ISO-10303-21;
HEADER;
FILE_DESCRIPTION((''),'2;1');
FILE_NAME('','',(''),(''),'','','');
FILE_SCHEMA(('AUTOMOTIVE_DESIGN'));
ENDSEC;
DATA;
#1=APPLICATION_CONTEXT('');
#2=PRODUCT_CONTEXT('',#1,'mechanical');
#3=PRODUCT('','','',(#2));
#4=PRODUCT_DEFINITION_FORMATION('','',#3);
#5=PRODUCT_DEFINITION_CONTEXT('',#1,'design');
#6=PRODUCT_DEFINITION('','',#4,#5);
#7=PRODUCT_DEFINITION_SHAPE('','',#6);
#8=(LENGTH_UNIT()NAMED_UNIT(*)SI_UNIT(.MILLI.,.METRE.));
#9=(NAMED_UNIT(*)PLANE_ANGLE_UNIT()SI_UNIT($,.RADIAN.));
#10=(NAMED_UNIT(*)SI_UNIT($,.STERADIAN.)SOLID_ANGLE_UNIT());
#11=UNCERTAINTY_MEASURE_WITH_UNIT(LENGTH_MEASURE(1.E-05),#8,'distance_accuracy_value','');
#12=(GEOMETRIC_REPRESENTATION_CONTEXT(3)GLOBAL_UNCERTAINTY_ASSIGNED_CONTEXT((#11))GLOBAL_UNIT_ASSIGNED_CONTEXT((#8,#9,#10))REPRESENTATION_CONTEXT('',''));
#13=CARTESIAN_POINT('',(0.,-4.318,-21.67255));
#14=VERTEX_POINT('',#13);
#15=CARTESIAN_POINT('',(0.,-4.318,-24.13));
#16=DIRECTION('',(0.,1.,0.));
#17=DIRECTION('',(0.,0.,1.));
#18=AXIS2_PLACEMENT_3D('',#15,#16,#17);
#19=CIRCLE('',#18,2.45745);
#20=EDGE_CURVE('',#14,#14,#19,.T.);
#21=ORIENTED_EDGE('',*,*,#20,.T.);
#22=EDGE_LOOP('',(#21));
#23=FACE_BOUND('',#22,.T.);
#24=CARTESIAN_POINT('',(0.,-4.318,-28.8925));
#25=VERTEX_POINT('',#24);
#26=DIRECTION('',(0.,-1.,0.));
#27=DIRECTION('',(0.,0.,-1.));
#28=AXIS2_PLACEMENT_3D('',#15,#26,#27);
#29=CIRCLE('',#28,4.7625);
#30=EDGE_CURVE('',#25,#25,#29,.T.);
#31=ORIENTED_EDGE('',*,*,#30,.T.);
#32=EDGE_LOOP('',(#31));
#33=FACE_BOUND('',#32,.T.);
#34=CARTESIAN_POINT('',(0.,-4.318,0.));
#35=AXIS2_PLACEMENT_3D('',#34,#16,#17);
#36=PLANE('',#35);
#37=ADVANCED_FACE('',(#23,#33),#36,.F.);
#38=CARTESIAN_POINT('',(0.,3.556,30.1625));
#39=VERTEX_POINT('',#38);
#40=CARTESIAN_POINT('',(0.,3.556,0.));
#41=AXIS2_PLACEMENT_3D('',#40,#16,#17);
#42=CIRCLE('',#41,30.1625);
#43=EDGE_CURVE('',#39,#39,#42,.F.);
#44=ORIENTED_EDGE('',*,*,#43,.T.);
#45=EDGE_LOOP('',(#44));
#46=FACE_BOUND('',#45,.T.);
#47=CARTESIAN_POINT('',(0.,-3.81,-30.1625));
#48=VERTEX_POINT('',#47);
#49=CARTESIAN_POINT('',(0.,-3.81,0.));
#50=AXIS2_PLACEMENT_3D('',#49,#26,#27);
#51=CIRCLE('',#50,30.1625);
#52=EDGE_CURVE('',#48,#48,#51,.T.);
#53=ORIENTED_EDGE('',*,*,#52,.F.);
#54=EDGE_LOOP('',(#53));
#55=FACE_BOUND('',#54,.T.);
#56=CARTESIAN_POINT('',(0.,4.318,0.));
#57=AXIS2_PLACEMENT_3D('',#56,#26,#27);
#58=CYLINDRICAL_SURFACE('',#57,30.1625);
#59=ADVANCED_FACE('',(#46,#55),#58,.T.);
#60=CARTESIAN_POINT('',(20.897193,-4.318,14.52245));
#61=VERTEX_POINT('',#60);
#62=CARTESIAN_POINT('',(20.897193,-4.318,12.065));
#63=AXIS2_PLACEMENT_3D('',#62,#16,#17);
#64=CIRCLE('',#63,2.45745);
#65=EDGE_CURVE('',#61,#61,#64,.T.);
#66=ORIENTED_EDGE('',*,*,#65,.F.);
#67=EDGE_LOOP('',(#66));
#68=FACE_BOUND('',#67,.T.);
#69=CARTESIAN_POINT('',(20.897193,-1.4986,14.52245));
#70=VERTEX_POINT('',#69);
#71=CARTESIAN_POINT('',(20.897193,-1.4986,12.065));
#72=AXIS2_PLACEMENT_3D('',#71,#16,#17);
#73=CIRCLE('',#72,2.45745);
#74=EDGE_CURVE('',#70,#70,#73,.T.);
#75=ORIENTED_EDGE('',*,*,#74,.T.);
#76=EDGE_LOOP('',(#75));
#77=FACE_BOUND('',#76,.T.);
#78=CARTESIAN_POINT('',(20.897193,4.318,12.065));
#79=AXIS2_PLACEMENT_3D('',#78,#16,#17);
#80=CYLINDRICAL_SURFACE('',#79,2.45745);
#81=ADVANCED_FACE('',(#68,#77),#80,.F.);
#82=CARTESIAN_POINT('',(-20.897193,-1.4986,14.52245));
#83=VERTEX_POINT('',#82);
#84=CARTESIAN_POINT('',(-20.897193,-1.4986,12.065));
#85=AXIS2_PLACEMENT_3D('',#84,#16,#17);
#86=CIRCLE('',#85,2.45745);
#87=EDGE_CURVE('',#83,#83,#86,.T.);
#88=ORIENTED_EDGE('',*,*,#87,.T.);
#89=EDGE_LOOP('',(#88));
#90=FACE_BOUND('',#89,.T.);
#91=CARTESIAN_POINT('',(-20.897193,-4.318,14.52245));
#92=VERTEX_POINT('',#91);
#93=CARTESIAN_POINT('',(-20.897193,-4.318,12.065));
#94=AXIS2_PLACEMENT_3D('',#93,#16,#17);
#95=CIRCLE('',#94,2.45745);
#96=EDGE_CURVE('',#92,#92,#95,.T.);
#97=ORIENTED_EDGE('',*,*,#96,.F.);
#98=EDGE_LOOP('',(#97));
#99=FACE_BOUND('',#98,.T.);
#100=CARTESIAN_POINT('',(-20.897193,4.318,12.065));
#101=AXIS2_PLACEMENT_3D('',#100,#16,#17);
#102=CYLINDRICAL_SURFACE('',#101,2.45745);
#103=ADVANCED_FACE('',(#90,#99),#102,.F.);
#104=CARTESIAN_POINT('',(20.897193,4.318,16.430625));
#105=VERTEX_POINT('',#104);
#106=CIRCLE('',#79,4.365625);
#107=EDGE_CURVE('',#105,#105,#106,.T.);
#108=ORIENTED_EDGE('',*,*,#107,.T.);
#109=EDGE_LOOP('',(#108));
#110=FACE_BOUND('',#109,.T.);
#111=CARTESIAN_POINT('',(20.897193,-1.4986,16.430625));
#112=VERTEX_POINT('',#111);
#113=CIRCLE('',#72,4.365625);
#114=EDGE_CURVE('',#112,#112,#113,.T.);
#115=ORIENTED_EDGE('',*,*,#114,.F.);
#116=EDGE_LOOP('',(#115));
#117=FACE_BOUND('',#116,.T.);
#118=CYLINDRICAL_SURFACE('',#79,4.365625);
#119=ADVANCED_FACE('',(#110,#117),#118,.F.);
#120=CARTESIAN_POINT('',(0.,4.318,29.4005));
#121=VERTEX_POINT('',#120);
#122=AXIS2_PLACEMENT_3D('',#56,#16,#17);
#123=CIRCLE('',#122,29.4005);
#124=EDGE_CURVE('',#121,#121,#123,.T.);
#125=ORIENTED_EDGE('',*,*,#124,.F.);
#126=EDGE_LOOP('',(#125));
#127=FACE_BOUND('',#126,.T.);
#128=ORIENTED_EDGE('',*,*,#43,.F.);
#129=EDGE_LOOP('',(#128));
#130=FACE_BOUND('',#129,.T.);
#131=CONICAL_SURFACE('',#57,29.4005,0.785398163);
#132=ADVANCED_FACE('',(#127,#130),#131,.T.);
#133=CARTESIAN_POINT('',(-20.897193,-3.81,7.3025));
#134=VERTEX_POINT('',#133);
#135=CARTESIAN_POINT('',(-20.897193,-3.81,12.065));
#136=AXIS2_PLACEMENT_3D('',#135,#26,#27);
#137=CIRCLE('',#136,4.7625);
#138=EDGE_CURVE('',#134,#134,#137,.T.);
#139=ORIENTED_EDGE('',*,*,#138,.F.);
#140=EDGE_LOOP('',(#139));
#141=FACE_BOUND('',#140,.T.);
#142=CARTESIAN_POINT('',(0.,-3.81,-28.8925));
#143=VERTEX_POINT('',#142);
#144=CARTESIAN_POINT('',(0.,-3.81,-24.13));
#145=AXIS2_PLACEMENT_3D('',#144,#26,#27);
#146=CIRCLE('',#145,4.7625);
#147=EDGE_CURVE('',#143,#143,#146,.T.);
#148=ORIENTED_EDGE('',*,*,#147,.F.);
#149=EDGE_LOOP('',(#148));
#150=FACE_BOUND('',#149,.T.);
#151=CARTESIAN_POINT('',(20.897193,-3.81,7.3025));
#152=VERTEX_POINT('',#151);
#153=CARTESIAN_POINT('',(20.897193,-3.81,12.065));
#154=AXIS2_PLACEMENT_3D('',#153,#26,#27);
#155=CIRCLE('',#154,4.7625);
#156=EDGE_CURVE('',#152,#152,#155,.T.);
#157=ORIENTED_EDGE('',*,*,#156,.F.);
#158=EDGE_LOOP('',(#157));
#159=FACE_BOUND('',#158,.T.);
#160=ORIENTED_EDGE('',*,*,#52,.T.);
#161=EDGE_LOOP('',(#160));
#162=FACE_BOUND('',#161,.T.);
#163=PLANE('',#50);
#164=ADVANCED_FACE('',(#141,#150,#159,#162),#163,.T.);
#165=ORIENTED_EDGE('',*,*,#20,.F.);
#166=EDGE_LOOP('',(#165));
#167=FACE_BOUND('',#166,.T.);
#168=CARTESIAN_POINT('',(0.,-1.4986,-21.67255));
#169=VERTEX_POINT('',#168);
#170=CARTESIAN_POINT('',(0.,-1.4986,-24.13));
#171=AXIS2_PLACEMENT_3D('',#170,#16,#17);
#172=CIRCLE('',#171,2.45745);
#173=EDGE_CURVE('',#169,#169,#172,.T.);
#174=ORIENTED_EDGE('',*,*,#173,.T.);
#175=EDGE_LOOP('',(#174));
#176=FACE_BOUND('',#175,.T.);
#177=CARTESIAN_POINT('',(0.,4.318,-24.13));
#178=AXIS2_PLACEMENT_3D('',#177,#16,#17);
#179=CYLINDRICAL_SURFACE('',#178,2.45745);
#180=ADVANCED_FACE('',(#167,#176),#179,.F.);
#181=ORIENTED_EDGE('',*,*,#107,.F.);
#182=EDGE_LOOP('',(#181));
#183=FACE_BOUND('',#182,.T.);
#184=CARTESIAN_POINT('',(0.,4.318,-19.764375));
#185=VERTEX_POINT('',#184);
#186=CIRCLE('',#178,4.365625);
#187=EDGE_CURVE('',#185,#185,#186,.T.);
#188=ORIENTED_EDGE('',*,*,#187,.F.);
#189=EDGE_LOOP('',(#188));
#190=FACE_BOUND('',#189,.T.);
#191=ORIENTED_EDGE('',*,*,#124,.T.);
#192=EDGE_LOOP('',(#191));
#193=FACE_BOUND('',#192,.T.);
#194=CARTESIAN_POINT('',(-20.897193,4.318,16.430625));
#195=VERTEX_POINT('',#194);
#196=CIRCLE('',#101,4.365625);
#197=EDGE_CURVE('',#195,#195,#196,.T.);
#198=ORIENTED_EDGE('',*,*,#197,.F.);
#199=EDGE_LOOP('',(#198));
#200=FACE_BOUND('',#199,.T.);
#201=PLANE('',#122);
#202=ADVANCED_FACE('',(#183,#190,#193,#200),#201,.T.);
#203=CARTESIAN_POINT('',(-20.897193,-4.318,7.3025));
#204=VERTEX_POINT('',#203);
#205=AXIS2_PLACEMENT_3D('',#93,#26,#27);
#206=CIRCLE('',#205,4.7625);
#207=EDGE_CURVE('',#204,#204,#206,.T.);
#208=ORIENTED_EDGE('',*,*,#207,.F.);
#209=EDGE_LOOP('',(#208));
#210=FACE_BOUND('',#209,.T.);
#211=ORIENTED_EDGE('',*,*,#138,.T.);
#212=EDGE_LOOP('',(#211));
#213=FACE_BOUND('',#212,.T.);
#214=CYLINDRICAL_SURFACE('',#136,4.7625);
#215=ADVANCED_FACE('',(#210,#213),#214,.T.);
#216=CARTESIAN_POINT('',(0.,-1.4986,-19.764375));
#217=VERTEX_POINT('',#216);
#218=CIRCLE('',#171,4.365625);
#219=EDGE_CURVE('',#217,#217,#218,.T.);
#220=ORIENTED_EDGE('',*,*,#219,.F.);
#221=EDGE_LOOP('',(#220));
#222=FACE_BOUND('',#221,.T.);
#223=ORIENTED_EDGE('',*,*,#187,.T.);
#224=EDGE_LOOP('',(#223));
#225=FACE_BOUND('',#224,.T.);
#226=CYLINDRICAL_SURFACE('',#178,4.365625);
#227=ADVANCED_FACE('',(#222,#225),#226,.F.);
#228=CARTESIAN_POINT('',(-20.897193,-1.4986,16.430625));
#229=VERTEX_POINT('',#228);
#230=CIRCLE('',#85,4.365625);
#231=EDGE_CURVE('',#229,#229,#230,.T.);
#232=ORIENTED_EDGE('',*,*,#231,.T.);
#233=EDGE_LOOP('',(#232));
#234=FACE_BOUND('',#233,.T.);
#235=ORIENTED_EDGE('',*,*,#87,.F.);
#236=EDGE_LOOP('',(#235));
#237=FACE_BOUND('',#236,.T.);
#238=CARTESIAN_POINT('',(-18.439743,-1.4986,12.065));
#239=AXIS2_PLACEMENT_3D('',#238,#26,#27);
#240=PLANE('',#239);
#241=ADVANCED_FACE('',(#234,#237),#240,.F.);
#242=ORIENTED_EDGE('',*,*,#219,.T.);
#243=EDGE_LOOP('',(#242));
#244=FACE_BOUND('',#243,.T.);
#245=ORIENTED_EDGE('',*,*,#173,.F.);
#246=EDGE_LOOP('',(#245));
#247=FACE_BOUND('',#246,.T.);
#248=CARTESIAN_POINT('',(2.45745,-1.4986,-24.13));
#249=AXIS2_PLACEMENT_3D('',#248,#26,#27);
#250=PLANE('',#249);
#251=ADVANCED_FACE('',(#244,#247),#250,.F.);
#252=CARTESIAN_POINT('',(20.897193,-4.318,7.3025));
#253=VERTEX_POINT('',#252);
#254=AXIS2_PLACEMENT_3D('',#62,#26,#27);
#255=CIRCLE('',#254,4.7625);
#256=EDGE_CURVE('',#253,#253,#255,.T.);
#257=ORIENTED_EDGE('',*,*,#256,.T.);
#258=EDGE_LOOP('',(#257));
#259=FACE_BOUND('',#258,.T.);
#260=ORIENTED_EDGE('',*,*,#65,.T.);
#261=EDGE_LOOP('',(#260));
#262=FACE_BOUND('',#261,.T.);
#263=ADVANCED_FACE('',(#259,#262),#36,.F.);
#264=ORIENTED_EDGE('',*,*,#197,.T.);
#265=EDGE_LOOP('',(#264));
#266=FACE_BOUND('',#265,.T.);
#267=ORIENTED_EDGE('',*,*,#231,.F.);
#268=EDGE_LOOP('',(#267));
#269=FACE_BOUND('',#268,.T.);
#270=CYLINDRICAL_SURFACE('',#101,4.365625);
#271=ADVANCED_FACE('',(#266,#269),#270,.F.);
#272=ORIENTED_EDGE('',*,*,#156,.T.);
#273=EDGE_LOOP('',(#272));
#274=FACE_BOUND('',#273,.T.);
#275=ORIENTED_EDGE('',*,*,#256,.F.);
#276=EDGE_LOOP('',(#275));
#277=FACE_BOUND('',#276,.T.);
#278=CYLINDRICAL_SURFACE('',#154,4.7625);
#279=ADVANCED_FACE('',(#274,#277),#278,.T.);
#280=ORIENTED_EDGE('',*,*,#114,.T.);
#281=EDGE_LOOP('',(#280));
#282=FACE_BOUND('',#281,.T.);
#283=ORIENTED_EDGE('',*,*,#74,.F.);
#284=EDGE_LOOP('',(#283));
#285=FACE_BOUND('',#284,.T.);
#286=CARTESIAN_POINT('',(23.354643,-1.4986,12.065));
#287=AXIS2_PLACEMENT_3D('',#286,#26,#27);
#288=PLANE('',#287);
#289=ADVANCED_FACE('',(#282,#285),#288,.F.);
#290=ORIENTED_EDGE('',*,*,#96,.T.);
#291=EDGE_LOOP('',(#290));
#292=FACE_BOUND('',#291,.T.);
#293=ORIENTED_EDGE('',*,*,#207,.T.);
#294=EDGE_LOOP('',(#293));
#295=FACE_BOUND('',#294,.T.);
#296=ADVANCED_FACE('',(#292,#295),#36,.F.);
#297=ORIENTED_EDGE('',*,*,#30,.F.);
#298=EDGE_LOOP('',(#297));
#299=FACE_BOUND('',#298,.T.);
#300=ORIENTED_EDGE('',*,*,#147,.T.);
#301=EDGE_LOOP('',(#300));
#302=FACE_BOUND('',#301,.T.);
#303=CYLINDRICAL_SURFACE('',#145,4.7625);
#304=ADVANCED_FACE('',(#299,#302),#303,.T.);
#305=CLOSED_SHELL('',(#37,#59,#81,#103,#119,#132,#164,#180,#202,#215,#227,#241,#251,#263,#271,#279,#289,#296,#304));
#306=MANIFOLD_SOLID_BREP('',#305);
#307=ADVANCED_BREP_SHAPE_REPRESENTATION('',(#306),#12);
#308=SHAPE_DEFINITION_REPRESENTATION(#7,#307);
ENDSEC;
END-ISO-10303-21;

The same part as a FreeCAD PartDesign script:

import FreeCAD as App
import Part
import Sketcher
Q = App.Units.Quantity


def edges_at(feature, points):
    """Names of the edges that pass closest to the given points."""
    edges = feature.Shape.Edges
    near = lambda p: min(range(len(edges)), key=lambda i: edges[i].distToShape(Part.Vertex(*p))[0])
    return sorted({f"Edge{near(p) + 1}" for p in points})

doc = App.newDocument("Part")
body = doc.addObject("PartDesign::Body", "Body")

sketch1 = body.newObject("Sketcher::SketchObject", "Sketch")
sketch1.AttachmentSupport = (doc.getObject("XZ_Plane"), [""])
sketch1.MapMode = "FlatFace"
sketch1.addGeometry(Part.Circle(App.Vector(0, 0, 0), App.Vector(0, 0, 1), 30), False)
sketch1.addConstraint(Sketcher.Constraint("Coincident", 0, 3, -1, 1))
sketch1.addConstraint(Sketcher.Constraint("Diameter", 0, Q("2.375 in")))
pad1 = body.newObject("PartDesign::Pad", "Pad")
pad1.Profile = sketch1
pad1.Length = Q("0.34 in")
pad1.Midplane = True

sketch2 = body.newObject("Sketcher::SketchObject", "Sketch001")
sketch2.AttachmentSupport = (doc.getObject("XZ_Plane"), [""])
sketch2.MapMode = "FlatFace"
sketch2.AttachmentOffset = App.Placement(App.Vector(0, 0, -0.17 * 25.4), App.Rotation())
sketch2.addGeometry(Part.Circle(App.Vector(0, -24.1, 0), App.Vector(0, 0, 1), 2.5), False)
sketch2.addConstraint(Sketcher.Constraint("PointOnObject", 0, 3, -2))
sketch2.addConstraint(Sketcher.Constraint("Diameter", 0, Q("0.1935 in")))
sketch2.addConstraint(Sketcher.Constraint("DistanceY", 0, 3, -1, 1, Q("0.95 in")))
doc.recompute()
hole = body.newObject("PartDesign::Hole", "Hole")
hole.Profile = sketch2
hole.ThreadType = "None"
hole.Diameter = Q("0.1935 in")
hole.DepthType = "ThroughAll"
hole.HoleCutType = "Counterbore"
hole.HoleCutDiameter = Q("0.34375 in")
hole.HoleCutDepth = Q("0.229 in")
hole.Reversed = True
doc.recompute()

polarpattern = body.newObject("PartDesign::PolarPattern", "PolarPattern")
polarpattern.Originals = [hole]
polarpattern.Axis = (doc.getObject("Y_Axis"), [""])
polarpattern.Angle = 360
polarpattern.Occurrences = 3
body.Tip = polarpattern

sketch3 = body.newObject("Sketcher::SketchObject", "Sketch002")
sketch3.AttachmentSupport = (doc.getObject("XZ_Plane"), [""])
sketch3.MapMode = "FlatFace"
sketch3.AttachmentOffset = App.Placement(App.Vector(0, 0, 0.17 * 25.4), App.Rotation())
sketch3.addGeometry(Part.Circle(App.Vector(0, 0, 0), App.Vector(0, 0, 1), 30.2), False)
sketch3.addGeometry(Part.Circle(App.Vector(-20.9, 12.1, 0), App.Vector(0, 0, 1), 4.8), False)
sketch3.addGeometry(Part.Circle(App.Vector(20.9, 12.1, 0), App.Vector(0, 0, 1), 4.8), False)
sketch3.addGeometry(Part.Circle(App.Vector(0, -24.1, 0), App.Vector(0, 0, 1), 4.8), False)
sketch3.addConstraint(Sketcher.Constraint("Coincident", 0, 3, -1, 1))
sketch3.addConstraint(Sketcher.Constraint("Equal", 1, 2))
sketch3.addConstraint(Sketcher.Constraint("Equal", 2, 3))
sketch3.addConstraint(Sketcher.Constraint("Symmetric", 1, 3, 2, 3, -2))
sketch3.addConstraint(Sketcher.Constraint("PointOnObject", 3, 3, -2))
sketch3.addConstraint(Sketcher.Constraint("Diameter", 0, Q("2.375 in")))
sketch3.addConstraint(Sketcher.Constraint("Diameter", 1, Q("0.375 in")))
sketch3.addConstraint(Sketcher.Constraint("DistanceY", 3, 3, -1, 1, Q("0.95 in")))
sketch3.addConstraint(Sketcher.Constraint("DistanceY", -1, 1, 1, 3, Q("0.475 in")))
sketch3.addConstraint(Sketcher.Constraint("DistanceX", 1, 3, -1, 1, Q("20.897193 mm")))
pocket1 = body.newObject("PartDesign::Pocket", "Pocket")
pocket1.Profile = sketch3
pocket1.Length = Q("0.02 in")
doc.recompute()

chamfer = body.newObject("PartDesign::Chamfer", "Chamfer")
chamfer.Base = (pocket1, edges_at(pocket1, [(0, 4.318, -30.163)]))
chamfer.Size = Q("0.03 in")

doc.recompute()
